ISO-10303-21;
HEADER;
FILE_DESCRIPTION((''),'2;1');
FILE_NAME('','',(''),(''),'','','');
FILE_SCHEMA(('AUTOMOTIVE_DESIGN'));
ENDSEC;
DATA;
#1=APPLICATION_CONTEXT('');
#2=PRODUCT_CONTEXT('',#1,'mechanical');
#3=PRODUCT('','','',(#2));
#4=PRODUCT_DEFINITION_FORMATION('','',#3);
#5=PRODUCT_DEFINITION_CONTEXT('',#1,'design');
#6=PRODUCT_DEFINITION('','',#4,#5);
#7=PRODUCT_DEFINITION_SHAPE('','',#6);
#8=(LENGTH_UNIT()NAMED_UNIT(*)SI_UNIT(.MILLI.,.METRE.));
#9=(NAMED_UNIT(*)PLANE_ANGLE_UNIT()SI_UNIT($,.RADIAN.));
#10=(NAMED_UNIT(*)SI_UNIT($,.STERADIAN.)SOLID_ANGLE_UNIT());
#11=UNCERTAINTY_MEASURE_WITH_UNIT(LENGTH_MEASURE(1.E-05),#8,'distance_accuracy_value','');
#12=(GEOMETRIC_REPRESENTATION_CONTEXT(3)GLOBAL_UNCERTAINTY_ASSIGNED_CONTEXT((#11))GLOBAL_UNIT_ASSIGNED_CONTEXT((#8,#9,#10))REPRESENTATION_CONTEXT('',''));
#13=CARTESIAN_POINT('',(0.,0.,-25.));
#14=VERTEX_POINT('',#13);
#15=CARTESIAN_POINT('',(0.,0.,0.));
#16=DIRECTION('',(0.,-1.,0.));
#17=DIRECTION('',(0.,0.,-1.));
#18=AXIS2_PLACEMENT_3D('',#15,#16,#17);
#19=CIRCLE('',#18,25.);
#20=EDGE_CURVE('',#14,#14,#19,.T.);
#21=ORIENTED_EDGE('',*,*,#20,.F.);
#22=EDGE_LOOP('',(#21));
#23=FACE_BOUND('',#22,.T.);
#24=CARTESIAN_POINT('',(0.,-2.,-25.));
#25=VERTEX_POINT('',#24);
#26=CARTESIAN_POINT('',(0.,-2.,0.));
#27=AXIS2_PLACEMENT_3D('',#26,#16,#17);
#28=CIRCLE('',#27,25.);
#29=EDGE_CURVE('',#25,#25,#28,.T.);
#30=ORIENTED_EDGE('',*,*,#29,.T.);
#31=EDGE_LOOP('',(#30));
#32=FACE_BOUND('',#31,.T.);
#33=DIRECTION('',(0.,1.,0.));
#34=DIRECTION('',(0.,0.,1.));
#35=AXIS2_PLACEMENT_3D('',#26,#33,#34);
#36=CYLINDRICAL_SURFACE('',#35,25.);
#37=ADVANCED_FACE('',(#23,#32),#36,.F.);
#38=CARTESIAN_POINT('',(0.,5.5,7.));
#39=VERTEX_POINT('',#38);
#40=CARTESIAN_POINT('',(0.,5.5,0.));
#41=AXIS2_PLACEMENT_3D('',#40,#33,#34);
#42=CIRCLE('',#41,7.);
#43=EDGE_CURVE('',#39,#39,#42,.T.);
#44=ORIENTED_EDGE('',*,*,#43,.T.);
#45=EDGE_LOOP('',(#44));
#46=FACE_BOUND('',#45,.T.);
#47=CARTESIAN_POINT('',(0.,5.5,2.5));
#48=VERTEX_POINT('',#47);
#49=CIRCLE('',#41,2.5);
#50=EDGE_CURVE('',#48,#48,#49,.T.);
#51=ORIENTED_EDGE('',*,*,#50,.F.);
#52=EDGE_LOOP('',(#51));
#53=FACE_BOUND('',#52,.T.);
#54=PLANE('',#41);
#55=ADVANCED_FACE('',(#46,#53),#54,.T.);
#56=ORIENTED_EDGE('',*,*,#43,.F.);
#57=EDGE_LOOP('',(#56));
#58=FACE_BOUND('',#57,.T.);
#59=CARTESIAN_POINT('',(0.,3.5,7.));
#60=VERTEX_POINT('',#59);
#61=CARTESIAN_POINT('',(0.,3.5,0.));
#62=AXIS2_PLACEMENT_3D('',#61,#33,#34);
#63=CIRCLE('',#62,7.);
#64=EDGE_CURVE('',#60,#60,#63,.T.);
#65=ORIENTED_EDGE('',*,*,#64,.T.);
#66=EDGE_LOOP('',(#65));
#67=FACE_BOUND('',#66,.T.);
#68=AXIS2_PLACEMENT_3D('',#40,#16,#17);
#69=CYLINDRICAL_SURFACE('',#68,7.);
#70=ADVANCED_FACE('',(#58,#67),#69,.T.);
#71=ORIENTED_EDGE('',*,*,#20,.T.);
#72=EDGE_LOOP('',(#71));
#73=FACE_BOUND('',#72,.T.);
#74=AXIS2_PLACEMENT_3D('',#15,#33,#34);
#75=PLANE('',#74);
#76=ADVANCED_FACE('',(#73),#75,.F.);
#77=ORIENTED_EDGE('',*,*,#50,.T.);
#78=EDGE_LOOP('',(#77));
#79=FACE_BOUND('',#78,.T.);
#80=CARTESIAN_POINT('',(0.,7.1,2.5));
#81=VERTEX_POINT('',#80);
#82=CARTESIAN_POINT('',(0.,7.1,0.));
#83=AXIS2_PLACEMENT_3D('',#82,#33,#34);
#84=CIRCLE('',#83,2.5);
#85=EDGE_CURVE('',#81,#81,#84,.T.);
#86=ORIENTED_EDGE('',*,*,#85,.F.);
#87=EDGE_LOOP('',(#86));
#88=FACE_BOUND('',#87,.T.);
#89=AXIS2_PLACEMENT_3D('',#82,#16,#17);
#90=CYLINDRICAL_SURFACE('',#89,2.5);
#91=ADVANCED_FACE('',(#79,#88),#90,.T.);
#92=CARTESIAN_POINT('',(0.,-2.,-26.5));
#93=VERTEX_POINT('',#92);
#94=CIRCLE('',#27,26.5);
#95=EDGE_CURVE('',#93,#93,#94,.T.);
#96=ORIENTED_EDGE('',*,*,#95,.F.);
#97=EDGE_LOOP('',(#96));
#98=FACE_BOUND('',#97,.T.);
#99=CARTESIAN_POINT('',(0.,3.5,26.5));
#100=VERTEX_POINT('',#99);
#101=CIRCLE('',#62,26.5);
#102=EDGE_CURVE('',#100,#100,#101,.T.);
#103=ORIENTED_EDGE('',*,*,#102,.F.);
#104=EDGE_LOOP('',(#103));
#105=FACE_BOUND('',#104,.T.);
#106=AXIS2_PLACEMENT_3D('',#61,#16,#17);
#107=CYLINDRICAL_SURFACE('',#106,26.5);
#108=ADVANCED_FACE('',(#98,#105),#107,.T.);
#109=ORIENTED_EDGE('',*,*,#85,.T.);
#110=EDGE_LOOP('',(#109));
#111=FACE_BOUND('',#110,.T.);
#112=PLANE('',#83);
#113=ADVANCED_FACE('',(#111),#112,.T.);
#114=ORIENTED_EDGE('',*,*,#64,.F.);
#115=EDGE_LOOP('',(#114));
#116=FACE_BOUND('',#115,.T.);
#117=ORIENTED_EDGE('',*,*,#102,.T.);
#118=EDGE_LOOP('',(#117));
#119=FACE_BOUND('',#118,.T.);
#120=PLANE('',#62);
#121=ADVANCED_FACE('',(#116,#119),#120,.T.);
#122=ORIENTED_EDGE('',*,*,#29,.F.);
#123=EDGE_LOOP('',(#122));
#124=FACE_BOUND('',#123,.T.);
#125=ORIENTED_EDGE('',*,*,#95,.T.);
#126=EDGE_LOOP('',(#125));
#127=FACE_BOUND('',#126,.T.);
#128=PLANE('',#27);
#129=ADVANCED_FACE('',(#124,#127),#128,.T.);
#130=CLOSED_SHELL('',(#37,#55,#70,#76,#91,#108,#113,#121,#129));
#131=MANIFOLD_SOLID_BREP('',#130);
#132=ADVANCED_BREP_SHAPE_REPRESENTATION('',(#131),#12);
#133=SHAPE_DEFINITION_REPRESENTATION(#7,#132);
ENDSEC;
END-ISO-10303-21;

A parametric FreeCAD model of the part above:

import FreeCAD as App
import Part
import Sketcher

doc = App.newDocument("Part")
body = doc.addObject("PartDesign::Body", "Body")

# Sketch on XZ plane
sketch1 = doc.addObject("Sketcher::SketchObject", "Sketch")
body.addObject(sketch1)
sketch1.AttachmentSupport = (doc.XZ_Plane, [""])
sketch1.MapMode = "FlatFace"
sketch1.addGeometry(Part.Circle(App.Vector(0, 0, 0), App.Vector(0, 0, 1), 26), False)
sketch1.addConstraint(Sketcher.Constraint("Coincident", 0, 3, -1, 1))
sketch1.addConstraint(Sketcher.Constraint("Diameter", 0, 53.0))
pad1 = doc.addObject("PartDesign::Pad", "Pad")
body.addObject(pad1)
pad1.Profile = sketch1
pad1.Length = 3.5
pad1.Reversed = True

# Sketch on XZ plane
sketch2 = doc.addObject("Sketcher::SketchObject", "Sketch001")
body.addObject(sketch2)
sketch2.AttachmentSupport = (doc.XZ_Plane, [""])
sketch2.MapMode = "FlatFace"
sketch2.AttachmentOffset = App.Placement(App.Vector(0, 0, -3.5), App.Rotation())
sketch2.addGeometry(Part.Circle(App.Vector(0, 0, 0), App.Vector(0, 0, 1), 7), False)
sketch2.addConstraint(Sketcher.Constraint("Coincident", 0, 3, -1, 1))
sketch2.addConstraint(Sketcher.Constraint("Diameter", 0, 14.0))
pad2 = doc.addObject("PartDesign::Pad", "Pad001")
body.addObject(pad2)
pad2.Profile = sketch2
pad2.Length = 2
pad2.Reversed = True

# Sketch on XZ plane
sketch3 = doc.addObject("Sketcher::SketchObject", "Sketch002")
body.addObject(sketch3)
sketch3.AttachmentSupport = (doc.XZ_Plane, [""])
sketch3.MapMode = "FlatFace"
sketch3.AttachmentOffset = App.Placement(App.Vector(0, 0, -5.5), App.Rotation())
sketch3.addGeometry(Part.Circle(App.Vector(0, 0, 0), App.Vector(0, 0, 1), 2.5), False)
sketch3.addConstraint(Sketcher.Constraint("Coincident", 0, 3, -1, 1))
sketch3.addConstraint(Sketcher.Constraint("Diameter", 0, 5.0))
pad3 = doc.addObject("PartDesign::Pad", "Pad002")
body.addObject(pad3)
pad3.Profile = sketch3
pad3.Length = 1.6
pad3.Reversed = True

# Sketch on XZ plane
sketch4 = doc.addObject("Sketcher::SketchObject", "Sketch003")
body.addObject(sketch4)
sketch4.AttachmentSupport = (doc.XZ_Plane, [""])
sketch4.MapMode = "FlatFace"
sketch4.AttachmentOffset = App.Placement(App.Vector(0, 0, 2), App.Rotation())
sketch4.addGeometry(Part.Circle(App.Vector(0, 0, 0), App.Vector(0, 0, 1), 26), False)
sketch4.addGeometry(Part.Circle(App.Vector(0, 0, 0), App.Vector(0, 0, 1), 25), False)
sketch4.addConstraint(Sketcher.Constraint("Coincident", 0, 3, -1, 1))
sketch4.addConstraint(Sketcher.Constraint("Coincident", 1, 3, -1, 1))
sketch4.addConstraint(Sketcher.Constraint("Diameter", 0, 53.0))
sketch4.addConstraint(Sketcher.Constraint("Diameter", 1, 50.0))
pad4 = doc.addObject("PartDesign::Pad", "Pad003")
body.addObject(pad4)
pad4.Profile = sketch4
pad4.Length = 2
pad4.Reversed = True

doc.recompute()
